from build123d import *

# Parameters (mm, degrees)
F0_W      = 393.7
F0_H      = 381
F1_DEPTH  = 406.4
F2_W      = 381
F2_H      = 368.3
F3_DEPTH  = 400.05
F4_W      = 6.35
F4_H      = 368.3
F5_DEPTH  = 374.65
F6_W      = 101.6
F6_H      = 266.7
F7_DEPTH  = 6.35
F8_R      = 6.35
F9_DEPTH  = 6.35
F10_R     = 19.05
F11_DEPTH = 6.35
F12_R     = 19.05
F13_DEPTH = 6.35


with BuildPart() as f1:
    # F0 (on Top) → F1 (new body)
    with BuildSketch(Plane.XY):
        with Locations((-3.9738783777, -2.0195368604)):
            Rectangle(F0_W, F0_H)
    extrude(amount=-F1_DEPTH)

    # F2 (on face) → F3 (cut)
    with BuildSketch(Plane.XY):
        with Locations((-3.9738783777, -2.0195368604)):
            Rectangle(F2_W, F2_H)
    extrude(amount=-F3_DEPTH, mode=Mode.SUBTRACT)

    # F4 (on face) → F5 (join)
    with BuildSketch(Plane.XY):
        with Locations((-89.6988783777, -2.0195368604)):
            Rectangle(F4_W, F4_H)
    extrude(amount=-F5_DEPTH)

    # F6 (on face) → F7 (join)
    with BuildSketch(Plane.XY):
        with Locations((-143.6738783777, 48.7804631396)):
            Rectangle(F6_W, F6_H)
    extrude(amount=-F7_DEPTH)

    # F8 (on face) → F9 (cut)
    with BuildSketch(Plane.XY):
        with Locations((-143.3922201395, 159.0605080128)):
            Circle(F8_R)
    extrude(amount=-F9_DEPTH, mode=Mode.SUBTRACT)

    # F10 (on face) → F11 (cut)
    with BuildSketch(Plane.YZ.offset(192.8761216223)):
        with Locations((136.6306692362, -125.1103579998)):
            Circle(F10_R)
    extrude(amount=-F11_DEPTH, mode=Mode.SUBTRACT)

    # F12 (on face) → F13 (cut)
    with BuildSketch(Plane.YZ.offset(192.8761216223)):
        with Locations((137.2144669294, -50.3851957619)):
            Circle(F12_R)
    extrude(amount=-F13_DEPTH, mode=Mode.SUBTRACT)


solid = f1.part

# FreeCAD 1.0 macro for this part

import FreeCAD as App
import Part
import Sketcher
Q = App.Units.Quantity

doc = App.newDocument("Part")
params = doc.addObject("Spreadsheet::Sheet", "Params")
for row, (alias, value) in enumerate([
    ("sketch1_height", "15 in"),
    ("sketch1_width", "15.5 in"),
    ("pad1_length", "16 in"),
    ("sketch2_width", "15 in"),
    ("sketch2_height", "14.5 in"),
    ("pocket1_length", "15.75 in"),
    ("sketch3_height", "14.5 in"),
    ("sketch3_width", "0.25 in"),
    ("pad2_length", "14.75 in"),
    ("sketch4_width", "4 in"),
    ("sketch4_height", "10.5 in"),
    ("pad3_length", "0.25 in"),
    ("sketch5_diameter", "0.5 in"),
    ("pocket2_length", "0.25 in"),
    ("sketch6_diameter", "1.5 in"),
    ("pocket3_length", "0.25 in"),
    ("sketch7_diameter", "1.5 in"),
    ("pocket4_length", "0.25 in"),
], start=1):
    params.set(f"A{row}", alias)
    params.set(f"B{row}", "=" + value)
    params.setAlias(f"B{row}", alias)

body = doc.addObject("PartDesign::Body", "Body")

# Sketch on XY plane
sketch1 = body.newObject("Sketcher::SketchObject", "Sketch")
sketch1.AttachmentSupport = (doc.getObject("XY_Plane"), [""])
sketch1.MapMode = "FlatFace"
sketch1.addGeometry(Part.LineSegment(App.Vector(-201, 188, 0), App.Vector(-201, -193, 0)), False)
sketch1.addGeometry(Part.LineSegment(App.Vector(-201, -193, 0), App.Vector(193, -193, 0)), False)
sketch1.addGeometry(Part.LineSegment(App.Vector(193, -193, 0), App.Vector(193, 188, 0)), False)
sketch1.addGeometry(Part.LineSegment(App.Vector(193, 188, 0), App.Vector(-201, 188, 0)), False)
sketch1.addConstraint(Sketcher.Constraint("Coincident", 0, 2, 1, 1))
sketch1.addConstraint(Sketcher.Constraint("Coincident", 1, 2, 2, 1))
sketch1.addConstraint(Sketcher.Constraint("Coincident", 2, 2, 3, 1))
sketch1.addConstraint(Sketcher.Constraint("Coincident", 3, 2, 0, 1))
sketch1.addConstraint(Sketcher.Constraint("Vertical", 0))
sketch1.addConstraint(Sketcher.Constraint("Horizontal", 1))
sketch1.addConstraint(Sketcher.Constraint("Vertical", 2))
sketch1.addConstraint(Sketcher.Constraint("Horizontal", 3))
sketch1.addConstraint(Sketcher.Constraint("DistanceY", 0, 2, 0, 1, Q("15 in")))
sketch1.addConstraint(Sketcher.Constraint("DistanceX", 1, 1, 1, 2, Q("15.5 in")))
sketch1.addConstraint(Sketcher.Constraint("DistanceX", 0, 2, -1, 1, 200.823878))
sketch1.addConstraint(Sketcher.Constraint("DistanceY", 0, 2, -1, 1, 192.519537))
sketch1.setExpression("Constraints[8]", "Params.sketch1_height")
sketch1.setExpression("Constraints[9]", "Params.sketch1_width")
pad1 = body.newObject("PartDesign::Pad", "Pad")
pad1.Profile = sketch1
pad1.setExpression("Length", "Params.pad1_length")
pad1.Reversed = True

# Sketch on XY plane
sketch2 = body.newObject("Sketcher::SketchObject", "Sketch001")
sketch2.AttachmentSupport = (doc.getObject("XY_Plane"), [""])
sketch2.MapMode = "FlatFace"
sketch2.addGeometry(Part.LineSegment(App.Vector(-194, 182, 0), App.Vector(-194, -186, 0)), False)
sketch2.addGeometry(Part.LineSegment(App.Vector(-194, -186, 0), App.Vector(187, -186, 0)), False)
sketch2.addGeometry(Part.LineSegment(App.Vector(187, -186, 0), App.Vector(187, 182, 0)), False)
sketch2.addGeometry(Part.LineSegment(App.Vector(187, 182, 0), App.Vector(-194, 182, 0)), False)
sketch2.addConstraint(Sketcher.Constraint("Coincident", 0, 2, 1, 1))
sketch2.addConstraint(Sketcher.Constraint("Coincident", 1, 2, 2, 1))
sketch2.addConstraint(Sketcher.Constraint("Coincident", 2, 2, 3, 1))
sketch2.addConstraint(Sketcher.Constraint("Coincident", 3, 2, 0, 1))
sketch2.addConstraint(Sketcher.Constraint("Vertical", 0))
sketch2.addConstraint(Sketcher.Constraint("Horizontal", 1))
sketch2.addConstraint(Sketcher.Constraint("Vertical", 2))
sketch2.addConstraint(Sketcher.Constraint("Horizontal", 3))
sketch2.addConstraint(Sketcher.Constraint("DistanceX", 1, 1, 1, 2, Q("15 in")))
sketch2.addConstraint(Sketcher.Constraint("DistanceY", 0, 2, 0, 1, Q("14.5 in")))
sketch2.addConstraint(Sketcher.Constraint("DistanceX", 0, 2, -1, 1, 194.473878))
sketch2.addConstraint(Sketcher.Constraint("DistanceY", 0, 2, -1, 1, 186.169537))
sketch2.setExpression("Constraints[8]", "Params.sketch2_width")
sketch2.setExpression("Constraints[9]", "Params.sketch2_height")
pocket1 = body.newObject("PartDesign::Pocket", "Pocket")
pocket1.Profile = sketch2
pocket1.setExpression("Length", "Params.pocket1_length")

# Sketch on XY plane
sketch3 = body.newObject("Sketcher::SketchObject", "Sketch002")
sketch3.AttachmentSupport = (doc.getObject("XY_Plane"), [""])
sketch3.MapMode = "FlatFace"
sketch3.addGeometry(Part.LineSegment(App.Vector(-93, 182, 0), App.Vector(-93, -186, 0)), False)
sketch3.addGeometry(Part.LineSegment(App.Vector(-93, -186, 0), App.Vector(-87, -186, 0)), False)
sketch3.addGeometry(Part.LineSegment(App.Vector(-87, -186, 0), App.Vector(-87, 182, 0)), False)
sketch3.addGeometry(Part.LineSegment(App.Vector(-87, 182, 0), App.Vector(-93, 182, 0)), False)
sketch3.addConstraint(Sketcher.Constraint("Coincident", 0, 2, 1, 1))
sketch3.addConstraint(Sketcher.Constraint("Coincident", 1, 2, 2, 1))
sketch3.addConstraint(Sketcher.Constraint("Coincident", 2, 2, 3, 1))
sketch3.addConstraint(Sketcher.Constraint("Coincident", 3, 2, 0, 1))
sketch3.addConstraint(Sketcher.Constraint("Vertical", 0))
sketch3.addConstraint(Sketcher.Constraint("Horizontal", 1))
sketch3.addConstraint(Sketcher.Constraint("Vertical", 2))
sketch3.addConstraint(Sketcher.Constraint("Horizontal", 3))
sketch3.addConstraint(Sketcher.Constraint("DistanceY", 0, 2, 0, 1, Q("14.5 in")))
sketch3.addConstraint(Sketcher.Constraint("DistanceX", 1, 1, 1, 2, Q("0.25 in")))
sketch3.addConstraint(Sketcher.Constraint("DistanceX", 0, 2, -1, 1, 92.873878))
sketch3.addConstraint(Sketcher.Constraint("DistanceY", 0, 2, -1, 1, 186.169537))
sketch3.setExpression("Constraints[8]", "Params.sketch3_height")
sketch3.setExpression("Constraints[9]", "Params.sketch3_width")
pad2 = body.newObject("PartDesign::Pad", "Pad001")
pad2.Profile = sketch3
pad2.setExpression("Length", "Params.pad2_length")
pad2.Reversed = True

# Sketch on XY plane
sketch4 = body.newObject("Sketcher::SketchObject", "Sketch003")
sketch4.AttachmentSupport = (doc.getObject("XY_Plane"), [""])
sketch4.MapMode = "FlatFace"
sketch4.addGeometry(Part.LineSegment(App.Vector(-194, 182, 0), App.Vector(-194, -85, 0)), False)
sketch4.addGeometry(Part.LineSegment(App.Vector(-194, -85, 0), App.Vector(-93, -85, 0)), False)
sketch4.addGeometry(Part.LineSegment(App.Vector(-93, -85, 0), App.Vector(-93, 182, 0)), False)
sketch4.addGeometry(Part.LineSegment(App.Vector(-93, 182, 0), App.Vector(-194, 182, 0)), False)
sketch4.addConstraint(Sketcher.Constraint("Coincident", 0, 2, 1, 1))
sketch4.addConstraint(Sketcher.Constraint("Coincident", 1, 2, 2, 1))
sketch4.addConstraint(Sketcher.Constraint("Coincident", 2, 2, 3, 1))
sketch4.addConstraint(Sketcher.Constraint("Coincident", 3, 2, 0, 1))
sketch4.addConstraint(Sketcher.Constraint("Vertical", 0))
sketch4.addConstraint(Sketcher.Constraint("Horizontal", 1))
sketch4.addConstraint(Sketcher.Constraint("Vertical", 2))
sketch4.addConstraint(Sketcher.Constraint("Horizontal", 3))
sketch4.addConstraint(Sketcher.Constraint("DistanceX", 1, 1, 1, 2, Q("4 in")))
sketch4.addConstraint(Sketcher.Constraint("DistanceY", 0, 2, 0, 1, Q("10.5 in")))
sketch4.addConstraint(Sketcher.Constraint("DistanceX", 0, 2, -1, 1, 194.473878))
sketch4.addConstraint(Sketcher.Constraint("DistanceY", 0, 2, -1, 1, 84.569537))
sketch4.setExpression("Constraints[8]", "Params.sketch4_width")
sketch4.setExpression("Constraints[9]", "Params.sketch4_height")
pad3 = body.newObject("PartDesign::Pad", "Pad002")
pad3.Profile = sketch4
pad3.setExpression("Length", "Params.pad3_length")
pad3.Reversed = True

# Sketch on XY plane
sketch5 = body.newObject("Sketcher::SketchObject", "Sketch004")
sketch5.AttachmentSupport = (doc.getObject("XY_Plane"), [""])
sketch5.MapMode = "FlatFace"
sketch5.addGeometry(Part.Circle(App.Vector(-143, 159, 0), App.Vector(0, 0, 1), 6), False)
sketch5.addConstraint(Sketcher.Constraint("Diameter", 0, Q("0.5 in")))
sketch5.addConstraint(Sketcher.Constraint("DistanceX", 0, 3, -1, 1, 143.39222))
sketch5.addConstraint(Sketcher.Constraint("DistanceY", -1, 1, 0, 3, 159.060508))
sketch5.setExpression("Constraints[0]", "Params.sketch5_diameter")
pocket2 = body.newObject("PartDesign::Pocket", "Pocket001")
pocket2.Profile = sketch5
pocket2.setExpression("Length", "Params.pocket2_length")

# Sketch on YZ plane
sketch6 = body.newObject("Sketcher::SketchObject", "Sketch005")
sketch6.AttachmentSupport = (doc.getObject("YZ_Plane"), [""])
sketch6.MapMode = "FlatFace"
sketch6.AttachmentOffset = App.Placement(App.Vector(0, 0, 192.876122), App.Rotation())
sketch6.addGeometry(Part.Circle(App.Vector(137, -125, 0), App.Vector(0, 0, 1), 19), False)
sketch6.addConstraint(Sketcher.Constraint("Diameter", 0, Q("1.5 in")))
sketch6.addConstraint(Sketcher.Constraint("DistanceX", -1, 1, 0, 3, 136.630669))
sketch6.addConstraint(Sketcher.Constraint("DistanceY", 0, 3, -1, 1, 125.110358))
sketch6.setExpression("Constraints[0]", "Params.sketch6_diameter")
pocket3 = body.newObject("PartDesign::Pocket", "Pocket002")
pocket3.Profile = sketch6
pocket3.setExpression("Length", "Params.pocket3_length")

# Sketch on YZ plane
sketch7 = body.newObject("Sketcher::SketchObject", "Sketch006")
sketch7.AttachmentSupport = (doc.getObject("YZ_Plane"), [""])
sketch7.MapMode = "FlatFace"
sketch7.AttachmentOffset = App.Placement(App.Vector(0, 0, 192.876122), App.Rotation())
sketch7.addGeometry(Part.Circle(App.Vector(137, -50, 0), App.Vector(0, 0, 1), 19), False)
sketch7.addConstraint(Sketcher.Constraint("Diameter", 0, Q("1.5 in")))
sketch7.addConstraint(Sketcher.Constraint("DistanceX", -1, 1, 0, 3, 137.214467))
sketch7.addConstraint(Sketcher.Constraint("DistanceY", 0, 3, -1, 1, 50.385196))
sketch7.setExpression("Constraints[0]", "Params.sketch7_diameter")
pocket4 = body.newObject("PartDesign::Pocket", "Pocket003")
pocket4.Profile = sketch7
pocket4.setExpression("Length", "Params.pocket4_length")

doc.recompute()
